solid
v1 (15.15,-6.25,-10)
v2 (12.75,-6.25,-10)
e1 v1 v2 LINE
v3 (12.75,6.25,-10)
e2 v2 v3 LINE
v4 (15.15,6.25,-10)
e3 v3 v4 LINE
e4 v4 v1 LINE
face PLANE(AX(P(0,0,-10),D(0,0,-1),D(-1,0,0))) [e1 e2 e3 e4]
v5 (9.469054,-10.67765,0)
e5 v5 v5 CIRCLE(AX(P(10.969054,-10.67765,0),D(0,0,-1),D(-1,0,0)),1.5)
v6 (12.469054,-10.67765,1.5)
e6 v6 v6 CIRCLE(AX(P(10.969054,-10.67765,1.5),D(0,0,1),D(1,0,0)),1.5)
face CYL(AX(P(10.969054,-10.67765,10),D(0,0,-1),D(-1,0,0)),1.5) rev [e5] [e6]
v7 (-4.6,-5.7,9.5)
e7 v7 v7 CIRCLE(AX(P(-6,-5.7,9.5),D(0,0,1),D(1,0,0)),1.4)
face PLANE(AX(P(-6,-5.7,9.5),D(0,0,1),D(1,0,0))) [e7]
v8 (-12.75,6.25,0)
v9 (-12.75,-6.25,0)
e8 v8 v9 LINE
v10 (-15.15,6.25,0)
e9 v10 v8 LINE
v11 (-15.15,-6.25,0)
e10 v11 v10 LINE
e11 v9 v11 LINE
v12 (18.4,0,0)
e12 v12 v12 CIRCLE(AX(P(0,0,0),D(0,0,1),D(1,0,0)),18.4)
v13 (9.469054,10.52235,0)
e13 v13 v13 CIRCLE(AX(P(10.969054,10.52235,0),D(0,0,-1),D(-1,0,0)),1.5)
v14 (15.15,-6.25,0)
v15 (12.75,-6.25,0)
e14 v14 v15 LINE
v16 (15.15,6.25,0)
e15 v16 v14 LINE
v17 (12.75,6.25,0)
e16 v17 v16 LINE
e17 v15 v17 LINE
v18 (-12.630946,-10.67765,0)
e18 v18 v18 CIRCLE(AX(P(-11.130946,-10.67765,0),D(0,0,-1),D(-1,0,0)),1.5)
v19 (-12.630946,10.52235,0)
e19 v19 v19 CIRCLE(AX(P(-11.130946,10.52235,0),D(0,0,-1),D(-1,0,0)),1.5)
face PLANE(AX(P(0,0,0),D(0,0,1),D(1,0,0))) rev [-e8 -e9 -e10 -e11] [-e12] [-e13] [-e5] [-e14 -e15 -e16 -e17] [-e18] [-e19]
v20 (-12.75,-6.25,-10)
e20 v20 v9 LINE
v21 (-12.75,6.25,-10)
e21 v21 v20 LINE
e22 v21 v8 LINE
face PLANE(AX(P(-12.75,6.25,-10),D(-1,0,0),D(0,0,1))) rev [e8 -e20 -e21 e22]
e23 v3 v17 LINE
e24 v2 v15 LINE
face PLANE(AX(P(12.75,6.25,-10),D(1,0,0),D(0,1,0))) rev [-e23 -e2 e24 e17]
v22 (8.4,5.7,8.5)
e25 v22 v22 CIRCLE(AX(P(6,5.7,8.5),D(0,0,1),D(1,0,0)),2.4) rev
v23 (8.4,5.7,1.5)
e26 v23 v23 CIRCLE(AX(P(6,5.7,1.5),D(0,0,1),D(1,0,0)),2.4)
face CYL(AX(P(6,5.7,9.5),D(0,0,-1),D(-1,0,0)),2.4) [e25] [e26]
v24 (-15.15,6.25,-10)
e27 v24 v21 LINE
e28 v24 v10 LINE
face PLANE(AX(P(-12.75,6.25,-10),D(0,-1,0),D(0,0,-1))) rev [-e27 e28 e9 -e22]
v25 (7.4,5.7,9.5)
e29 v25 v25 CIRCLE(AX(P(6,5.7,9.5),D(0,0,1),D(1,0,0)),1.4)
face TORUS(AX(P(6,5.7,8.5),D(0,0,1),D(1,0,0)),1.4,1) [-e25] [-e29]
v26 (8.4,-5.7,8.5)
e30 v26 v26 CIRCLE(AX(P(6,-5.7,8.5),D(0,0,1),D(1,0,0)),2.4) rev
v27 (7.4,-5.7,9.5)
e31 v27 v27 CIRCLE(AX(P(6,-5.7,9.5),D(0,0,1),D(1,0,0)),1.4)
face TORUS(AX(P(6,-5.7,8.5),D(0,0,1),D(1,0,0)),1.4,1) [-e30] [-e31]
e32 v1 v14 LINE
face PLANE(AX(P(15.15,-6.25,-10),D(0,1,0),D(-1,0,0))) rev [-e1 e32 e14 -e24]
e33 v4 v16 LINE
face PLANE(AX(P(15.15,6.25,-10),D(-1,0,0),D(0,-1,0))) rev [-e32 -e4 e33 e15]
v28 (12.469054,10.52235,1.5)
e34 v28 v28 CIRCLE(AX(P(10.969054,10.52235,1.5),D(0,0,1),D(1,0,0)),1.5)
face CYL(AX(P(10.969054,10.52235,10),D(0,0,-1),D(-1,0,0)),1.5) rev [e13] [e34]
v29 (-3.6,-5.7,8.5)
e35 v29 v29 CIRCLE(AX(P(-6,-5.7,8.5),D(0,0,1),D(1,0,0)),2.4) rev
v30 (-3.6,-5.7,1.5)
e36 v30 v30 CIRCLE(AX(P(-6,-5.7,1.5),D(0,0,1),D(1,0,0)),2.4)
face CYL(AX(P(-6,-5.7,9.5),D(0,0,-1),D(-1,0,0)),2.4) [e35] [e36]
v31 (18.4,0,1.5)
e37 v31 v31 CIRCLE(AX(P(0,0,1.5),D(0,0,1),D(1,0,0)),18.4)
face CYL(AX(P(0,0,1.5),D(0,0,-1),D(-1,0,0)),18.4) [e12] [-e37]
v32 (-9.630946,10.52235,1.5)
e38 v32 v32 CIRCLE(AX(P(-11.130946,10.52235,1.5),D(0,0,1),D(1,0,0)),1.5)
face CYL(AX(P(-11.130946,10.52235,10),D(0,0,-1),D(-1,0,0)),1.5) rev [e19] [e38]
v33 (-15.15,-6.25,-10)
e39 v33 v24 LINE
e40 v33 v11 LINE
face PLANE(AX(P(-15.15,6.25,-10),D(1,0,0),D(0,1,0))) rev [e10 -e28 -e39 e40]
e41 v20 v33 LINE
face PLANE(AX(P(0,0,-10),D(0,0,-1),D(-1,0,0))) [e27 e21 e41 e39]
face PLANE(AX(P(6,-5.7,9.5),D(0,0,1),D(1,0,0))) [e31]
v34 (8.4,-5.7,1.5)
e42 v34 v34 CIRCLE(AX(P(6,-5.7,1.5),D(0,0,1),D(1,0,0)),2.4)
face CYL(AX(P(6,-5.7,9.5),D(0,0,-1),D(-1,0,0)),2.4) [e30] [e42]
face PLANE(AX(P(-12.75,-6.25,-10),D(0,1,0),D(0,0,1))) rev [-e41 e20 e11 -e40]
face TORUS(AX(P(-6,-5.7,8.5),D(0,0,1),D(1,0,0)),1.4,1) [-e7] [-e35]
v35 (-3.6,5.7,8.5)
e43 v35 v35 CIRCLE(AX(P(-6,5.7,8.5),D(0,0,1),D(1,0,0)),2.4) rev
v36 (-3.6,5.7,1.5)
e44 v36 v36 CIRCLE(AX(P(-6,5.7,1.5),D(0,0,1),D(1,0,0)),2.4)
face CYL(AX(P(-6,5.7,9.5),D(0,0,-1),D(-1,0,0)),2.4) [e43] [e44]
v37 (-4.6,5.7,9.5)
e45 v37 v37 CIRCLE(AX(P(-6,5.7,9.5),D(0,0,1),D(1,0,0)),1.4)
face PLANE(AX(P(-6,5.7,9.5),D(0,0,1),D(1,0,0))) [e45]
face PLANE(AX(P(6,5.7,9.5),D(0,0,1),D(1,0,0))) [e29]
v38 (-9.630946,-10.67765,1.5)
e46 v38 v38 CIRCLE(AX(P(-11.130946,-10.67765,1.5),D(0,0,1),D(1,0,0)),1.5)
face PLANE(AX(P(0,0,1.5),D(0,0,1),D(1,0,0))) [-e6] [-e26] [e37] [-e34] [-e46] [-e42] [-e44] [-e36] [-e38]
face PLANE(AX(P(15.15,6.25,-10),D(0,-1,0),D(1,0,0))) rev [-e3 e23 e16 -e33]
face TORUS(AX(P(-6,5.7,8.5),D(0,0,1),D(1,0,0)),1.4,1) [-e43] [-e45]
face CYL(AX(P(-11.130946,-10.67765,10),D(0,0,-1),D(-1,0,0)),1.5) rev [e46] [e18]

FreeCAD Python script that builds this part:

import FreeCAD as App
import Part
import Sketcher


def edges_at(feature, points):
    """Names of the edges that pass closest to the given points."""
    edges = feature.Shape.Edges
    near = lambda p: min(range(len(edges)), key=lambda i: edges[i].distToShape(Part.Vertex(*p))[0])
    return sorted({f"Edge{near(p) + 1}" for p in points})


def add_polygon(sketch, points):
    """Adds a closed chain of lines whose ends are joined by coincident constraints."""
    first, n = sketch.GeometryCount, len(points)
    for a, b in zip(points, points[1:] + points[:1]):
        sketch.addGeometry(Part.LineSegment(App.Vector(*a, 0), App.Vector(*b, 0)), False)
    for i in range(n):
        sketch.addConstraint(Sketcher.Constraint("Coincident", first + i, 2, first + (i + 1) % n, 1))

doc = App.newDocument("Part")
body = doc.addObject("PartDesign::Body", "Body")

# Sketch on XY plane
sketch1 = body.newObject("Sketcher::SketchObject", "Sketch")
sketch1.AttachmentSupport = (doc.getObject("XY_Plane"), [""])
sketch1.MapMode = "FlatFace"
sketch1.addGeometry(Part.Circle(App.Vector(0, 0, 0), App.Vector(0, 0, 1), 18), False)
sketch1.addConstraint(Sketcher.Constraint("Coincident", 0, 3, -1, 1))
sketch1.addConstraint(Sketcher.Constraint("Diameter", 0, 36.8))
pad1 = body.newObject("PartDesign::Pad", "Pad")
pad1.Profile = sketch1
pad1.Length = 1.5

# Sketch on XY plane
sketch2 = body.newObject("Sketcher::SketchObject", "Sketch001")
sketch2.AttachmentSupport = (doc.getObject("XY_Plane"), [""])
sketch2.MapMode = "FlatFace"
sketch2.addGeometry(Part.Circle(App.Vector(-28, 46.1, 0), App.Vector(0, 0, 1), 1.5), False)
sketch2.addGeometry(Part.Circle(App.Vector(-28, 24.9, 0), App.Vector(0, 0, 1), 1.5), False)
sketch2.addGeometry(Part.Circle(App.Vector(-5.9, 24.9, 0), App.Vector(0, 0, 1), 1.5), False)
sketch2.addGeometry(Part.Circle(App.Vector(-5.9, 46.1, 0), App.Vector(0, 0, 1), 1.5), False)
sketch2.addGeometry(Part.Circle(App.Vector(-11.1, 10.5, 0), App.Vector(0, 0, 1), 1.5), False)
sketch2.addGeometry(Part.Circle(App.Vector(-11.1, -10.7, 0), App.Vector(0, 0, 1), 1.5), False)
sketch2.addGeometry(Part.Circle(App.Vector(11, -10.7, 0), App.Vector(0, 0, 1), 1.5), False)
sketch2.addGeometry(Part.Circle(App.Vector(11, 10.5, 0), App.Vector(0, 0, 1), 1.5), False)
sketch2.addConstraint(Sketcher.Constraint("Equal", 0, 1))
sketch2.addConstraint(Sketcher.Constraint("Equal", 1, 2))
sketch2.addConstraint(Sketcher.Constraint("Equal", 2, 3))
sketch2.addConstraint(Sketcher.Constraint("Equal", 3, 4))
sketch2.addConstraint(Sketcher.Constraint("Equal", 4, 5))
sketch2.addConstraint(Sketcher.Constraint("Equal", 5, 6))
sketch2.addConstraint(Sketcher.Constraint("Equal", 6, 7))
sketch2.addConstraint(Sketcher.Constraint("Horizontal", 1, 3, 2, 3))
sketch2.addConstraint(Sketcher.Constraint("Horizontal", 0, 3, 3, 3))
sketch2.addConstraint(Sketcher.Constraint("Horizontal", 5, 3, 6, 3))
sketch2.addConstraint(Sketcher.Constraint("Horizontal", 4, 3, 7, 3))
sketch2.addConstraint(Sketcher.Constraint("Vertical", 0, 3, 1, 3))
sketch2.addConstraint(Sketcher.Constraint("Vertical", 2, 3, 3, 3))
sketch2.addConstraint(Sketcher.Constraint("Vertical", 4, 3, 5, 3))
sketch2.addConstraint(Sketcher.Constraint("Vertical", 6, 3, 7, 3))
sketch2.addConstraint(Sketcher.Constraint("Diameter", 0, 3.0))
sketch2.addConstraint(Sketcher.Constraint("DistanceY", 1, 3, 0, 3, 21.2))
sketch2.addConstraint(Sketcher.Constraint("DistanceX", 1, 3, 2, 3, 22.1))
sketch2.addConstraint(Sketcher.Constraint("DistanceY", 5, 3, 4, 3, 21.2))
sketch2.addConstraint(Sketcher.Constraint("DistanceX", 5, 3, 6, 3, 22.1))
sketch2.addConstraint(Sketcher.Constraint("DistanceY", -1, 1, 0, 3, 46.07827))
sketch2.addConstraint(Sketcher.Constraint("DistanceY", -1, 1, 4, 3, 10.52235))
sketch2.addConstraint(Sketcher.Constraint("DistanceX", 0, 3, -1, 1, 28.033143))
sketch2.addConstraint(Sketcher.Constraint("DistanceX", 4, 3, -1, 1, 11.130946))
pocket1 = body.newObject("PartDesign::Pocket", "Pocket")
pocket1.Profile = sketch2
pocket1.Length = 10
pocket1.Reversed = True

# Sketch on XY plane
sketch3 = body.newObject("Sketcher::SketchObject", "Sketch002")
sketch3.AttachmentSupport = (doc.getObject("XY_Plane"), [""])
sketch3.MapMode = "FlatFace"
add_polygon(sketch3, [(-12.8, 6.2), (-12.8, -6.2), (-15.2, -6.2), (-15.2, 6.2)])  # lines 0-3
add_polygon(sketch3, [(15.2, 6.2), (15.2, -6.2), (12.8, -6.2), (12.8, 6.2)])  # lines 4-7
sketch3.addConstraint(Sketcher.Constraint("Vertical", 0))
sketch3.addConstraint(Sketcher.Constraint("Horizontal", 1))
sketch3.addConstraint(Sketcher.Constraint("Vertical", 2))
sketch3.addConstraint(Sketcher.Constraint("Horizontal", 3))
sketch3.addConstraint(Sketcher.Constraint("Vertical", 4))
sketch3.addConstraint(Sketcher.Constraint("Horizontal", 5))
sketch3.addConstraint(Sketcher.Constraint("Vertical", 6))
sketch3.addConstraint(Sketcher.Constraint("Horizontal", 7))
sketch3.addConstraint(Sketcher.Constraint("Symmetric", 2, 2, 4, 2, -1, 1))
sketch3.addConstraint(Sketcher.Constraint("Symmetric", 0, 2, 6, 2, -1, 1))
sketch3.addConstraint(Sketcher.Constraint("Horizontal", 1, 2, 4, 2))
sketch3.addConstraint(Sketcher.Constraint("DistanceX", 1, 2, 1, 1, 2.4))
sketch3.addConstraint(Sketcher.Constraint("DistanceY", 0, 2, 0, 1, 12.5))
sketch3.addConstraint(Sketcher.Constraint("DistanceX", 0, 2, 4, 2, 27.9))
pad2 = body.newObject("PartDesign::Pad", "Pad001")
pad2.Profile = sketch3
pad2.Length = 10
pad2.Reversed = True

# Sketch on XY plane
sketch4 = body.newObject("Sketcher::SketchObject", "Sketch003")
sketch4.AttachmentSupport = (doc.getObject("XY_Plane"), [""])
sketch4.MapMode = "FlatFace"
sketch4.AttachmentOffset = App.Placement(App.Vector(0, 0, 1.5), App.Rotation())
sketch4.addGeometry(Part.Circle(App.Vector(6, 5.7, 0), App.Vector(0, 0, 1), 2.4), False)
sketch4.addGeometry(Part.Circle(App.Vector(6, -5.7, 0), App.Vector(0, 0, 1), 2.4), False)
sketch4.addGeometry(Part.Circle(App.Vector(-6, -5.7, 0), App.Vector(0, 0, 1), 2.4), False)
sketch4.addGeometry(Part.Circle(App.Vector(-6, 5.7, 0), App.Vector(0, 0, 1), 2.4), False)
sketch4.addConstraint(Sketcher.Constraint("Equal", 0, 1))
sketch4.addConstraint(Sketcher.Constraint("Equal", 1, 2))
sketch4.addConstraint(Sketcher.Constraint("Equal", 2, 3))
sketch4.addConstraint(Sketcher.Constraint("Symmetric", 0, 3, 2, 3, -1, 1))
sketch4.addConstraint(Sketcher.Constraint("Symmetric", 1, 3, 3, 3, -1, 1))
sketch4.addConstraint(Sketcher.Constraint("Symmetric", 1, 3, 2, 3, -2))
sketch4.addConstraint(Sketcher.Constraint("Diameter", 0, 4.8))
sketch4.addConstraint(Sketcher.Constraint("DistanceX", -1, 1, 0, 3, 6.0))
sketch4.addConstraint(Sketcher.Constraint("DistanceY", -1, 1, 0, 3, 5.7))
pad3 = body.newObject("PartDesign::Pad", "Pad002")
pad3.Profile = sketch4
pad3.Length = 8
doc.recompute()

fillet = body.newObject("PartDesign::Fillet", "Fillet")
fillet.Base = (pad3, edges_at(pad3, [
    (3.6, 5.7, 9.5),
    (3.6, -5.7, 9.5),
    (-8.4, -5.7, 9.5),
    (-8.4, 5.7, 9.5),
]))
fillet.Radius = 1

doc.recompute()
